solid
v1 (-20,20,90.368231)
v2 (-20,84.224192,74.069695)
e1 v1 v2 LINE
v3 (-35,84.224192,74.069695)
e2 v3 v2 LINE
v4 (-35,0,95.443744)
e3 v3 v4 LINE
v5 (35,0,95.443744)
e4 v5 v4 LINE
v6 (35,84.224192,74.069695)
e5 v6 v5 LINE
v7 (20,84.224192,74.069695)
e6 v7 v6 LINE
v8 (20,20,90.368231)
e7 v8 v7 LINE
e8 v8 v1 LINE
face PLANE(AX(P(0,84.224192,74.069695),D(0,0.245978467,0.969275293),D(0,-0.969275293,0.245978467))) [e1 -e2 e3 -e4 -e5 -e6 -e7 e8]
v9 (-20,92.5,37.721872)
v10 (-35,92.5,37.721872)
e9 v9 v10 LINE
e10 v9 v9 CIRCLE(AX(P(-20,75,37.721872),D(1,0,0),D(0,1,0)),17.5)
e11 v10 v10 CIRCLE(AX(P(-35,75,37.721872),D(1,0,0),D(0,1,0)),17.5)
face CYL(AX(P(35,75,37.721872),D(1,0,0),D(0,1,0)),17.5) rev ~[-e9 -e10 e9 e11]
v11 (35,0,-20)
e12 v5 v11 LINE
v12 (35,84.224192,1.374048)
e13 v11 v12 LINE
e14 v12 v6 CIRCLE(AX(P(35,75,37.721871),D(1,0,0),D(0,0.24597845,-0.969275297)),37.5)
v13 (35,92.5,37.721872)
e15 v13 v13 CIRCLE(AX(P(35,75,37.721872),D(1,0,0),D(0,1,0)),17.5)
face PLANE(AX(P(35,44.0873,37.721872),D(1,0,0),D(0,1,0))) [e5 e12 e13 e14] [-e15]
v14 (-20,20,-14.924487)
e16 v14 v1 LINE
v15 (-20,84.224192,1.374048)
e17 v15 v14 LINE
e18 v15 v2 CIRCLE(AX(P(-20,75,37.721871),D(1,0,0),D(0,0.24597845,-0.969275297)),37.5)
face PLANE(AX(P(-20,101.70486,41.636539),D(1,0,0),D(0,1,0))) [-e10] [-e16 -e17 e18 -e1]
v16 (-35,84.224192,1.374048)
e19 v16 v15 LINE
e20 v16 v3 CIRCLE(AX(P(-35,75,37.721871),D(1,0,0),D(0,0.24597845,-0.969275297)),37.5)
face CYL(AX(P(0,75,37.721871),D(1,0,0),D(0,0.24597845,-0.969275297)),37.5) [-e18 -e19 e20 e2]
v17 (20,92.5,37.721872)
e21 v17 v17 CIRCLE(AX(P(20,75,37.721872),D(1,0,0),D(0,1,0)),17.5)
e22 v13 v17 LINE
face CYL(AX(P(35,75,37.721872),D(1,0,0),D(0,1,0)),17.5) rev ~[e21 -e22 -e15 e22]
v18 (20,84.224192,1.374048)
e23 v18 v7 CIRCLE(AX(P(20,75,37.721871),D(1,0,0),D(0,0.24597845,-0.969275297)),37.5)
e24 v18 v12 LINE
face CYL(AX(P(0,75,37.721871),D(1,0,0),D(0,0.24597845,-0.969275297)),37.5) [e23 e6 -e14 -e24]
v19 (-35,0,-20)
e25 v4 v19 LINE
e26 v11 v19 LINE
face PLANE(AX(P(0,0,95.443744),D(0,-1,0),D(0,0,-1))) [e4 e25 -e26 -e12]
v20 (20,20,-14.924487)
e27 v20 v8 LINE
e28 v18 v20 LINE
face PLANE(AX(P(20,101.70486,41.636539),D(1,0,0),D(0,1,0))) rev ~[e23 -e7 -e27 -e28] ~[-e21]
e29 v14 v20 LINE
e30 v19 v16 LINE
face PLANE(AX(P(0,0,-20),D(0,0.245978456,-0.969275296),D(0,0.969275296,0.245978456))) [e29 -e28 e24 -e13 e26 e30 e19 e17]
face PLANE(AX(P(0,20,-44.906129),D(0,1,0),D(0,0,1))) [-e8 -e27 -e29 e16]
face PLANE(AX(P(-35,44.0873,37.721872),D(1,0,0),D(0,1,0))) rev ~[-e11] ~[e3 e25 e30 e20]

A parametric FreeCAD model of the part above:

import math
import FreeCAD as App
import Part
import Sketcher


def add_polygon(sketch, points):
    """Adds a closed chain of lines whose ends are joined by coincident constraints."""
    first, n = sketch.GeometryCount, len(points)
    for a, b in zip(points, points[1:] + points[:1]):
        sketch.addGeometry(Part.LineSegment(App.Vector(*a, 0), App.Vector(*b, 0)), False)
    for i in range(n):
        sketch.addConstraint(Sketcher.Constraint("Coincident", first + i, 2, first + (i + 1) % n, 1))

doc = App.newDocument("Part")
params = doc.addObject("Spreadsheet::Sheet", "Params")
for row, (alias, value) in enumerate([
    ("sketch1_radius", "37.5 mm"),
    ("pad1_length", "70 mm"),
    ("pocket1_length", "40 mm"),
    ("sketch3_diameter", "35 mm"),
    ("pocket2_length", "100 mm"),
], start=1):
    params.set(f"A{row}", alias)
    params.set(f"B{row}", "=" + value)
    params.setAlias(f"B{row}", alias)

body = doc.addObject("PartDesign::Body", "Body")

# Sketch on YZ plane
sketch1 = body.newObject("Sketcher::SketchObject", "Sketch")
sketch1.AttachmentSupport = (doc.getObject("YZ_Plane"), [""])
sketch1.MapMode = "FlatFace"
sketch1.addGeometry(Part.LineSegment(App.Vector(0, -20, 0), App.Vector(84, 1, 0)), False)
sketch1.addGeometry(Part.ArcOfCircle(Part.Circle(App.Vector(75, 38, 0), App.Vector(0, 0, 1), 37), math.radians(-76), math.radians(76)), False)
sketch1.addGeometry(Part.LineSegment(App.Vector(84, 74, 0), App.Vector(0, 95, 0)), False)
sketch1.addGeometry(Part.LineSegment(App.Vector(0, 95, 0), App.Vector(0, -20, 0)), False)
sketch1.addConstraint(Sketcher.Constraint("Tangent", 0, 2, 1, 1))
sketch1.addConstraint(Sketcher.Constraint("Tangent", 1, 2, 2, 1))
sketch1.addConstraint(Sketcher.Constraint("Coincident", 2, 2, 3, 1))
sketch1.addConstraint(Sketcher.Constraint("Coincident", 3, 2, 0, 1))
sketch1.addConstraint(Sketcher.Constraint("Vertical", 3))
sketch1.addConstraint(Sketcher.Constraint("PointOnObject", 2, 2, -2))
sketch1.addConstraint(Sketcher.Constraint("Vertical", 0, 2, 1, 2))
sketch1.addConstraint(Sketcher.Constraint("Radius", 1, 37.5))
sketch1.addConstraint(Sketcher.Constraint("DistanceX", -1, 1, 1, 3, 75.0))
sketch1.addConstraint(Sketcher.Constraint("DistanceY", 3, 2, -1, 1, 20.0))
sketch1.addConstraint(Sketcher.Constraint("DistanceY", 3, 2, 3, 1, 115.443744))
sketch1.setExpression("Constraints[7]", "Params.sketch1_radius")
pad1 = body.newObject("PartDesign::Pad", "Pad")
pad1.Profile = sketch1
pad1.setExpression("Length", "Params.pad1_length")
pad1.Midplane = True

# Sketch on YZ plane
sketch2 = body.newObject("Sketcher::SketchObject", "Sketch001")
sketch2.AttachmentSupport = (doc.getObject("YZ_Plane"), [""])
sketch2.MapMode = "FlatFace"
add_polygon(sketch2, [(20, 128), (20, -45), (183, -45), (183, 128)])  # lines 0-3
sketch2.addConstraint(Sketcher.Constraint("Vertical", 0))
sketch2.addConstraint(Sketcher.Constraint("Horizontal", 1))
sketch2.addConstraint(Sketcher.Constraint("Vertical", 2))
sketch2.addConstraint(Sketcher.Constraint("Horizontal", 3))
sketch2.addConstraint(Sketcher.Constraint("DistanceX", -1, 1, 0, 2, 20.0))
sketch2.addConstraint(Sketcher.Constraint("DistanceX", 1, 1, 1, 2, 163.409721))
sketch2.addConstraint(Sketcher.Constraint("DistanceY", 0, 2, 0, 1, 173.085335))
sketch2.addConstraint(Sketcher.Constraint("DistanceY", 0, 2, -1, 1, 44.906129))
pocket1 = body.newObject("PartDesign::Pocket", "Pocket")
pocket1.Profile = sketch2
pocket1.setExpression("Length", "Params.pocket1_length")
pocket1.Midplane = True

# Sketch on YZ plane
sketch3 = body.newObject("Sketcher::SketchObject", "Sketch002")
sketch3.AttachmentSupport = (doc.getObject("YZ_Plane"), [""])
sketch3.MapMode = "FlatFace"
sketch3.AttachmentOffset = App.Placement(App.Vector(0, 0, 35), App.Rotation())
sketch3.addGeometry(Part.Circle(App.Vector(75, 38, 0), App.Vector(0, 0, 1), 18), False)
sketch3.addConstraint(Sketcher.Constraint("Diameter", 0, 35.0))
sketch3.addConstraint(Sketcher.Constraint("DistanceX", -1, 1, 0, 3, 75.0))
sketch3.addConstraint(Sketcher.Constraint("DistanceY", -1, 1, 0, 3, 37.721872))
sketch3.setExpression("Constraints[0]", "Params.sketch3_diameter")
pocket2 = body.newObject("PartDesign::Pocket", "Pocket001")
pocket2.Profile = sketch3
pocket2.setExpression("Length", "Params.pocket2_length")

doc.recompute()
